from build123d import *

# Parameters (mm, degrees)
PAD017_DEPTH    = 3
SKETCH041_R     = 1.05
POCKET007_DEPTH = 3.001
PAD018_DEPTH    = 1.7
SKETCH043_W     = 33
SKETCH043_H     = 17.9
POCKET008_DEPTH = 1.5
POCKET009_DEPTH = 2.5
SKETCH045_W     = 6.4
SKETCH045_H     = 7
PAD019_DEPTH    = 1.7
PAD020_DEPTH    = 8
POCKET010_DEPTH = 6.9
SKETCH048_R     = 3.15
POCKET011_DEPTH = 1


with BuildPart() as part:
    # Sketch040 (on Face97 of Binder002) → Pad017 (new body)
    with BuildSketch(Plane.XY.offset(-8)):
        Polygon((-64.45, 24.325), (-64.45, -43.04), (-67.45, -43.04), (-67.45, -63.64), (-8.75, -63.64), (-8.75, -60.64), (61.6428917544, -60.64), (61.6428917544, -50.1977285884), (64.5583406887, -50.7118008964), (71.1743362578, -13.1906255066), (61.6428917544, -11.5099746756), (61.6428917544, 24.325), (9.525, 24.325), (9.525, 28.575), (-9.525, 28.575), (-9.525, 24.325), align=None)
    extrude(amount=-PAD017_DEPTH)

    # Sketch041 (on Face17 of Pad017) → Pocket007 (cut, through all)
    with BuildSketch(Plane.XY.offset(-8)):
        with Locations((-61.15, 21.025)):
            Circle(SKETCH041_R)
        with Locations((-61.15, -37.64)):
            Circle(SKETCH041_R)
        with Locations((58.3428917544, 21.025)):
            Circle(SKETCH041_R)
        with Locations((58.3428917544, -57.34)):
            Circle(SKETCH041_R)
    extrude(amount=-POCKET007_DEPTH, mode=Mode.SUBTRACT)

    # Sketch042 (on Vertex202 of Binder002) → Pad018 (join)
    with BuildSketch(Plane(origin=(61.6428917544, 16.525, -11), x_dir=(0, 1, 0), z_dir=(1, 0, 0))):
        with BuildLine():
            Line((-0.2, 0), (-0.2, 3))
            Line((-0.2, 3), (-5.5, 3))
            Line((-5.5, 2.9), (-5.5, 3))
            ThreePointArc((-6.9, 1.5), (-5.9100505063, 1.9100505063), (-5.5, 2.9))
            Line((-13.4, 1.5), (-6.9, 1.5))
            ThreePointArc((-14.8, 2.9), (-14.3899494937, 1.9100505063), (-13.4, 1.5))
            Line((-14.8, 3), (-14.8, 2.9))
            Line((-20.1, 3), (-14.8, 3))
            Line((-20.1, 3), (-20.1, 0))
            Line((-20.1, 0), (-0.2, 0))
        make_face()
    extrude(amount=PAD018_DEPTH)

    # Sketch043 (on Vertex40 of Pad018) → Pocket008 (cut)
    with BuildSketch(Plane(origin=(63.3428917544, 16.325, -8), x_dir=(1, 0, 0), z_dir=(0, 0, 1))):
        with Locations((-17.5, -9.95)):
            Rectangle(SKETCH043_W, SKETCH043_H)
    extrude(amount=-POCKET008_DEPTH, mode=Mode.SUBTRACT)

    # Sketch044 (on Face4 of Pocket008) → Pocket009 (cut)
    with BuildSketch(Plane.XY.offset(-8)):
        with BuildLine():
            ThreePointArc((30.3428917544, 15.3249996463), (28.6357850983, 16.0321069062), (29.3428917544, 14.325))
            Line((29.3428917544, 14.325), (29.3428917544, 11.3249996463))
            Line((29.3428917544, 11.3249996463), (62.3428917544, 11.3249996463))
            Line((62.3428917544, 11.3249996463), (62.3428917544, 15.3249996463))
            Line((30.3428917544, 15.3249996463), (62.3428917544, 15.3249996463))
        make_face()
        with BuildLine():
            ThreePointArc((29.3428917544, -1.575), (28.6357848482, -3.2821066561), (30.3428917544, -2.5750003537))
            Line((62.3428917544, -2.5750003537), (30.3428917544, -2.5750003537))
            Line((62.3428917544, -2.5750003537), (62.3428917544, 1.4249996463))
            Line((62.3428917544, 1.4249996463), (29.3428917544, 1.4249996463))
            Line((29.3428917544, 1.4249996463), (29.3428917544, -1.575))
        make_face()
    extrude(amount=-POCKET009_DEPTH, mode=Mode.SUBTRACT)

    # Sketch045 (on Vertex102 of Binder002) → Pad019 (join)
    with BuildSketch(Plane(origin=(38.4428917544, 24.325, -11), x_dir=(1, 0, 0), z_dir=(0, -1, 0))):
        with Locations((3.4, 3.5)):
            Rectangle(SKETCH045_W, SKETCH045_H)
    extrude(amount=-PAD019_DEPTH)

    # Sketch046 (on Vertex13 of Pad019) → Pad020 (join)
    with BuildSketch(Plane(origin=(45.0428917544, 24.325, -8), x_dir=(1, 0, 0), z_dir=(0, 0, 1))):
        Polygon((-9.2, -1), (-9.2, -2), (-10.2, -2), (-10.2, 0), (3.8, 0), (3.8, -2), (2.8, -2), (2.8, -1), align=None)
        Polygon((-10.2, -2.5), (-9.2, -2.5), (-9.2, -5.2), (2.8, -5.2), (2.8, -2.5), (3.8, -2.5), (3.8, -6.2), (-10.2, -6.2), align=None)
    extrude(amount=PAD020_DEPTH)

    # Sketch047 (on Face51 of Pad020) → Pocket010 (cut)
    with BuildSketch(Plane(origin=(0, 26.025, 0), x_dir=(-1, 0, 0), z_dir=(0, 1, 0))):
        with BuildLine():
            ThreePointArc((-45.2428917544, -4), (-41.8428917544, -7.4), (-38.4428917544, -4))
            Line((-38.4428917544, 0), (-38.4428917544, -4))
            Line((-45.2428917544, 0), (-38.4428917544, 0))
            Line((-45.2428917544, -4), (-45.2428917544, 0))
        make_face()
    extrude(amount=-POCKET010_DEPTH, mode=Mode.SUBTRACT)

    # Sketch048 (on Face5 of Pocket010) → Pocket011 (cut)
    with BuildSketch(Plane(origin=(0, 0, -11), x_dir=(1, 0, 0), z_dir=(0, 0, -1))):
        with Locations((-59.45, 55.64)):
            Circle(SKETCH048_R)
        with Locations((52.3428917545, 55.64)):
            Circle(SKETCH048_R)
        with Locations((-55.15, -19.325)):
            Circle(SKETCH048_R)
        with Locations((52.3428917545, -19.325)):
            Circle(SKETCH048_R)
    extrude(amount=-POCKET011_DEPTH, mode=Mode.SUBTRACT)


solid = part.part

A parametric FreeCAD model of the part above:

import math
import FreeCAD as App
import Part
import Sketcher

V = App.Vector
Q = App.Units.Quantity


def add_polygon(sketch, points):
    """Adds a closed chain of lines whose ends are joined by coincident constraints."""
    first, n = sketch.GeometryCount, len(points)
    for a, b in zip(points, points[1:] + points[:1]):
        sketch.addGeometry(Part.LineSegment(App.Vector(*a, 0), App.Vector(*b, 0)), False)
    for i in range(n):
        sketch.addConstraint(Sketcher.Constraint("Coincident", first + i, 2, first + (i + 1) % n, 1))

doc = App.newDocument("Part")
params = doc.addObject("Spreadsheet::Sheet", "Params")
for row, (alias, value) in enumerate([
    ("sketch1_width", "3 mm"),
    ("sketch1_width2", "58.7 mm"),
    ("sketch1_height", "20.6 mm"),
    ("sketch1_length", "38.1 mm"),
    ("sketch1_width3", "19.05 mm"),
    ("pad1_length", "3 mm"),
    ("sketch2_diameter", "2.1 mm"),
    ("sketch3_radius", "1.4 mm"),
    ("sketch3_height", "3 mm"),
    ("sketch3_width", "5.3 mm"),
    ("sketch3_width2", "6.5 mm"),
    ("sketch3_height2", "0.1 mm"),
    ("pad2_length", "1.7 mm"),
    ("sketch4_width", "33 mm"),
    ("sketch4_height", "17.9 mm"),
    ("pocket2_length", "1.5 mm"),
    ("sketch5_radius", "1 mm"),
    ("sketch5_width", "33 mm"),
    ("sketch5_height", "3 mm"),
    ("pocket3_length", "2.5 mm"),
    ("sketch6_height", "7 mm"),
    ("sketch6_width", "6.4 mm"),
    ("pad3_length", "1.7 mm"),
    ("sketch7_width", "12 mm"),
    ("sketch7_width2", "1 mm"),
    ("sketch7_height", "2 mm"),
    ("sketch7_height2", "3.7 mm"),
    ("sketch7_height3", "2.7 mm"),
    ("pad4_length", "8 mm"),
    ("sketch8_radius", "3.4 mm"),
    ("sketch8_height", "4 mm"),
    ("pocket4_length", "6.9 mm"),
    ("sketch9_diameter", "6.3 mm"),
    ("pocket5_length", "1 mm"),
], start=1):
    params.set(f"A{row}", alias)
    params.set(f"B{row}", "=" + value)
    params.setAlias(f"B{row}", alias)

body = doc.addObject("PartDesign::Body", "Body")

# Sketch on XY plane
sketch1 = doc.addObject("Sketcher::SketchObject", "Sketch")
body.addObject(sketch1)
sketch1.AttachmentSupport = (doc.XY_Plane, [""])
sketch1.MapMode = "FlatFace"
sketch1.AttachmentOffset = App.Placement(V(0, 0, -8), App.Rotation())
add_polygon(sketch1, [(-64.5, 24.3), (-64.5, -43), (-67.5, -43), (-67.5, -63.6), (-8.8, -63.6), (-8.8, -60.6), (61.6, -60.6), (61.6, -50.2), (64.6, -50.7), (71.2, -13.2), (61.6, -11.5), (61.6, 24.3), (9.5, 24.3), (9.5, 28.6), (-9.5, 28.6), (-9.5, 24.3)])  # lines 0-15
sketch1.addConstraint([
    Sketcher.Constraint("Vertical", 0),
    Sketcher.Constraint("Horizontal", 1),
    Sketcher.Constraint("Vertical", 2),
    Sketcher.Constraint("Horizontal", 3),
    Sketcher.Constraint("Vertical", 4),
    Sketcher.Constraint("Horizontal", 5),
    Sketcher.Constraint("Vertical", 6),
    Sketcher.Constraint("Vertical", 10),
    Sketcher.Constraint("Horizontal", 11),
    Sketcher.Constraint("Vertical", 12),
    Sketcher.Constraint("Horizontal", 13),
    Sketcher.Constraint("Vertical", 14),
    Sketcher.Constraint("Horizontal", 15),
    Sketcher.Constraint("Symmetric", 11, 2, 14, 2, -2),
    Sketcher.Constraint("Perpendicular", 7, 8),
    Sketcher.Constraint("Perpendicular", 8, 9),
    Sketcher.Constraint("Vertical", 6, 2, 9, 2),
    Sketcher.Constraint("Equal", 1, 4),
    Sketcher.Constraint("DistanceX", 1, 2, 1, 1, Q("3 mm")),
    Sketcher.Constraint("Angle", 7, Q("-10 deg")),
    Sketcher.Constraint("DistanceX", 3, 1, 3, 2, Q("58.7 mm")),
    Sketcher.Constraint("DistanceY", 2, 2, 2, 1, Q("20.6 mm")),
    Sketcher.Constraint("Distance", 8, Q("38.1 mm")),
    Sketcher.Constraint("DistanceX", 13, 2, 13, 1, Q("19.05 mm")),
    Sketcher.Constraint("DistanceY", 12, 1, 12, 2, Q("4.25 mm")),
    Sketcher.Constraint("DistanceX", 15, 2, 15, 1, Q("54.925 mm")),
    Sketcher.Constraint("DistanceY", 0, 2, 0, 1, Q("67.365 mm")),
    Sketcher.Constraint("DistanceY", 0, 2, -1, 1, Q("43.04 mm")),
    Sketcher.Constraint("DistanceX", 5, 1, 5, 2, Q("70.392892 mm")),
    Sketcher.Constraint("DistanceY", 6, 1, 6, 2, Q("10.442271 mm")),
    Sketcher.Constraint("DistanceY", 7, 2, -1, 1, Q("50.711801 mm")),
])
sketch1.setExpression("Constraints[34]", "Params.sketch1_width")
sketch1.setExpression("Constraints[36]", "Params.sketch1_width2")
sketch1.setExpression("Constraints[37]", "Params.sketch1_height")
sketch1.setExpression("Constraints[38]", "Params.sketch1_length")
sketch1.setExpression("Constraints[39]", "Params.sketch1_width3")
pad1 = doc.addObject("PartDesign::Pad", "Pad")
body.addObject(pad1)
pad1.Profile = sketch1
pad1.setExpression("Length", "Params.pad1_length")
pad1.Reversed = True

# Sketch on XY plane
sketch2 = doc.addObject("Sketcher::SketchObject", "Sketch001")
body.addObject(sketch2)
sketch2.AttachmentSupport = (doc.XY_Plane, [""])
sketch2.MapMode = "FlatFace"
sketch2.AttachmentOffset = App.Placement(V(0, 0, -8), App.Rotation())
sketch2.addGeometry([
    Part.Circle(V(-61.1, 21, 0), V(0, 0, 1), 1.1),
    Part.Circle(V(-61.1, -37.6, 0), V(0, 0, 1), 1.1),
    Part.Circle(V(58.3, 21, 0), V(0, 0, 1), 1.1),
    Part.Circle(V(58.3, -57.3, 0), V(0, 0, 1), 1.1),
], False)
sketch2.addConstraint([
    Sketcher.Constraint("Equal", 0, 1),
    Sketcher.Constraint("Equal", 1, 2),
    Sketcher.Constraint("Equal", 2, 3),
    Sketcher.Constraint("Horizontal", 0, 3, 2, 3),
    Sketcher.Constraint("Vertical", 0, 3, 1, 3),
    Sketcher.Constraint("Vertical", 2, 3, 3, 3),
    Sketcher.Constraint("Diameter", 0, Q("2.1 mm")),
    Sketcher.Constraint("DistanceY", 3, 3, 1, 3, Q("19.7 mm")),
    Sketcher.Constraint("DistanceX", 0, 3, -1, 1, Q("61.15 mm")),
    Sketcher.Constraint("DistanceY", 1, 3, -1, 1, Q("37.64 mm")),
    Sketcher.Constraint("DistanceY", -1, 1, 0, 3, Q("21.025 mm")),
    Sketcher.Constraint("DistanceX", -1, 1, 2, 3, Q("58.342892 mm")),
])
sketch2.setExpression("Constraints[6]", "Params.sketch2_diameter")
pocket1 = doc.addObject("PartDesign::Pocket", "Pocket")
body.addObject(pocket1)
pocket1.Profile = sketch2
pocket1.Type = "ThroughAll"

# Sketch on YZ plane
sketch3 = doc.addObject("Sketcher::SketchObject", "Sketch002")
body.addObject(sketch3)
sketch3.AttachmentSupport = (doc.YZ_Plane, [""])
sketch3.MapMode = "FlatFace"
sketch3.AttachmentOffset = App.Placement(V(0, 0, 61.642892), App.Rotation())
sketch3.addGeometry([
    Part.LineSegment(V(16.32, -11, 0), V(16.32, -8, 0)),  # 0
    Part.LineSegment(V(16.32, -8, 0), V(11.03, -8, 0)),  # 1
    Part.LineSegment(V(11.03, -8, 0), V(11.03, -8.1, 0)),  # 2
    Part.ArcOfCircle(Part.Circle(V(9.62, -8.1, 0), V(0, 0, 1), 1.4), math.radians(-90), math.radians(0)),  # 3
    Part.LineSegment(V(9.62, -9.5, 0), V(3.12, -9.5, 0)),  # 4
    Part.ArcOfCircle(Part.Circle(V(3.12, -8.1, 0), V(0, 0, 1), 1.4), math.radians(180), math.radians(270)),  # 5
    Part.LineSegment(V(1.73, -8.1, 0), V(1.73, -8, 0)),  # 6
    Part.LineSegment(V(1.73, -8, 0), V(-3.58, -8, 0)),  # 7
    Part.LineSegment(V(-3.58, -8, 0), V(-3.58, -11, 0)),  # 8
    Part.LineSegment(V(-3.58, -11, 0), V(16.32, -11, 0)),  # 9
], False)
sketch3.addConstraint([
    Sketcher.Constraint("Coincident", 0, 2, 1, 1),
    Sketcher.Constraint("Coincident", 1, 2, 2, 1),
    Sketcher.Constraint("Tangent", 2, 2, 3, 2),
    Sketcher.Constraint("Tangent", 3, 1, 4, 1),
    Sketcher.Constraint("Tangent", 4, 2, 5, 2),
    Sketcher.Constraint("Tangent", 5, 1, 6, 1),
    Sketcher.Constraint("Coincident", 6, 2, 7, 1),
    Sketcher.Constraint("Coincident", 7, 2, 8, 1),
    Sketcher.Constraint("Coincident", 8, 2, 9, 1),
    Sketcher.Constraint("Coincident", 9, 2, 0, 1),
    Sketcher.Constraint("Vertical", 0),
    Sketcher.Constraint("Horizontal", 1),
    Sketcher.Constraint("Vertical", 2),
    Sketcher.Constraint("Horizontal", 4),
    Sketcher.Constraint("Vertical", 6),
    Sketcher.Constraint("Horizontal", 7),
    Sketcher.Constraint("Vertical", 8),
    Sketcher.Constraint("Horizontal", 9),
    Sketcher.Constraint("Equal", 3, 5),
    Sketcher.Constraint("Horizontal", 1, 2, 6, 2),
    Sketcher.Constraint("Equal", 1, 7),
    Sketcher.Constraint("Radius", 3, Q("1.4 mm")),
    Sketcher.Constraint("DistanceY", 0, 1, 0, 2, Q("3 mm")),
    Sketcher.Constraint("DistanceX", 1, 2, 1, 1, Q("5.3 mm")),
    Sketcher.Constraint("DistanceX", 4, 2, 4, 1, Q("6.5 mm")),
    Sketcher.Constraint("DistanceY", 2, 2, 2, 1, Q("0.1 mm")),
    Sketcher.Constraint("DistanceY", 0, 2, -1, 1, Q("8 mm")),
    Sketcher.Constraint("DistanceX", -1, 1, 3, 3, Q("9.625 mm")),
])
sketch3.setExpression("Constraints[21]", "Params.sketch3_radius")
sketch3.setExpression("Constraints[22]", "Params.sketch3_height")
sketch3.setExpression("Constraints[23]", "Params.sketch3_width")
sketch3.setExpression("Constraints[24]", "Params.sketch3_width2")
sketch3.setExpression("Constraints[25]", "Params.sketch3_height2")
pad2 = doc.addObject("PartDesign::Pad", "Pad001")
body.addObject(pad2)
pad2.Profile = sketch3
pad2.setExpression("Length", "Params.pad2_length")

# Sketch on XY plane
sketch4 = doc.addObject("Sketcher::SketchObject", "Sketch003")
body.addObject(sketch4)
sketch4.AttachmentSupport = (doc.XY_Plane, [""])
sketch4.MapMode = "FlatFace"
sketch4.AttachmentOffset = App.Placement(V(0, 0, -8), App.Rotation())
add_polygon(sketch4, [(29, 15), (29, -3), (62, -3), (62, 15)])  # lines 0-3
sketch4.addConstraint([
    Sketcher.Constraint("Vertical", 0),
    Sketcher.Constraint("Horizontal", 1),
    Sketcher.Constraint("Vertical", 2),
    Sketcher.Constraint("Horizontal", 3),
    Sketcher.Constraint("DistanceX", 1, 1, 1, 2, Q("33 mm")),
    Sketcher.Constraint("DistanceY", 0, 2, 0, 1, Q("17.9 mm")),
    Sketcher.Constraint("DistanceY", 0, 2, -1, 1, Q("2.575 mm")),
    Sketcher.Constraint("DistanceX", -1, 1, 0, 2, Q("29.342892 mm")),
])
sketch4.setExpression("Constraints[8]", "Params.sketch4_width")
sketch4.setExpression("Constraints[9]", "Params.sketch4_height")
pocket2 = doc.addObject("PartDesign::Pocket", "Pocket001")
body.addObject(pocket2)
pocket2.Profile = sketch4
pocket2.setExpression("Length", "Params.pocket2_length")

# Sketch on XY plane
sketch5 = doc.addObject("Sketcher::SketchObject", "Sketch004")
body.addObject(sketch5)
sketch5.AttachmentSupport = (doc.XY_Plane, [""])
sketch5.MapMode = "FlatFace"
sketch5.AttachmentOffset = App.Placement(V(0, 0, -8), App.Rotation())
sketch5.addGeometry([
    Part.ArcOfCircle(Part.Circle(V(29.3, 15.3, 0), V(0, 0, 1), 1), math.radians(0), math.radians(270)),  # 0
    Part.LineSegment(V(29.3, 14.3, 0), V(29.3, 11.3, 0)),  # 1
    Part.LineSegment(V(29.3, 11.3, 0), V(62.3, 11.3, 0)),  # 2
    Part.LineSegment(V(62.3, 11.3, 0), V(62.3, 15.3, 0)),  # 3
    Part.LineSegment(V(62.3, 15.3, 0), V(30.3, 15.3, 0)),  # 4
    Part.ArcOfCircle(Part.Circle(V(29.3, -2.6, 0), V(0, 0, 1), 1), math.radians(90), math.radians(360)),  # 5
    Part.LineSegment(V(30.3, -2.6, 0), V(62.3, -2.6, 0)),  # 6
    Part.LineSegment(V(62.3, -2.6, 0), V(62.3, 1.4, 0)),  # 7
    Part.LineSegment(V(62.3, 1.4, 0), V(29.3, 1.4, 0)),  # 8
    Part.LineSegment(V(29.3, 1.4, 0), V(29.3, -1.6, 0)),  # 9
], False)
sketch5.addConstraint([
    Sketcher.Constraint("Coincident", 0, 2, 1, 1),
    Sketcher.Constraint("Coincident", 1, 2, 2, 1),
    Sketcher.Constraint("Coincident", 2, 2, 3, 1),
    Sketcher.Constraint("Coincident", 3, 2, 4, 1),
    Sketcher.Constraint("Coincident", 4, 2, 0, 1),
    Sketcher.Constraint("Coincident", 5, 2, 6, 1),
    Sketcher.Constraint("Coincident", 6, 2, 7, 1),
    Sketcher.Constraint("Coincident", 7, 2, 8, 1),
    Sketcher.Constraint("Coincident", 8, 2, 9, 1),
    Sketcher.Constraint("Coincident", 9, 2, 5, 1),
    Sketcher.Constraint("Vertical", 1),
    Sketcher.Constraint("Horizontal", 2),
    Sketcher.Constraint("Vertical", 3),
    Sketcher.Constraint("Horizontal", 4),
    Sketcher.Constraint("Horizontal", 6),
    Sketcher.Constraint("Vertical", 7),
    Sketcher.Constraint("Horizontal", 8),
    Sketcher.Constraint("Vertical", 9),
    Sketcher.Constraint("Equal", 0, 5),
    Sketcher.Constraint("Horizontal", 0, 3, 3, 2),
    Sketcher.Constraint("Vertical", 0, 3, 5, 3),
    Sketcher.Constraint("Vertical", 5, 3, 0, 2),
    Sketcher.Constraint("Vertical", 3, 2, 6, 2),
    Sketcher.Constraint("Vertical", 1, 2, 8, 2),
    Sketcher.Constraint("Equal", 3, 7),
    Sketcher.Constraint("Equal", 1, 9),
    Sketcher.Constraint("Radius", 0, Q("1 mm")),
    Sketcher.Constraint("DistanceX", 2, 1, 2, 2, Q("33 mm")),
    Sketcher.Constraint("DistanceY", 1, 2, 1, 1, Q("3 mm")),
    Sketcher.Constraint("DistanceY", 5, 3, 0, 3, Q("17.9 mm")),
    Sketcher.Constraint("DistanceY", -1, 1, 0, 3, Q("15.325 mm")),
    Sketcher.Constraint("DistanceX", -1, 1, 0, 3, Q("29.342892 mm")),
])
sketch5.setExpression("Constraints[26]", "Params.sketch5_radius")
sketch5.setExpression("Constraints[27]", "Params.sketch5_width")
sketch5.setExpression("Constraints[28]", "Params.sketch5_height")
pocket3 = doc.addObject("PartDesign::Pocket", "Pocket002")
body.addObject(pocket3)
pocket3.Profile = sketch5
pocket3.setExpression("Length", "Params.pocket3_length")

# Sketch on XZ plane
sketch6 = doc.addObject("Sketcher::SketchObject", "Sketch005")
body.addObject(sketch6)
sketch6.AttachmentSupport = (doc.XZ_Plane, [""])
sketch6.MapMode = "FlatFace"
sketch6.AttachmentOffset = App.Placement(V(0, 0, -24.325), App.Rotation())
add_polygon(sketch6, [(39, -4), (39, -11), (45, -11), (45, -4)])  # lines 0-3
sketch6.addConstraint([
    Sketcher.Constraint("Vertical", 0),
    Sketcher.Constraint("Horizontal", 1),
    Sketcher.Constraint("Vertical", 2),
    Sketcher.Constraint("Horizontal", 3),
    Sketcher.Constraint("DistanceY", 0, 2, 0, 1, Q("7 mm")),
    Sketcher.Constraint("DistanceX", 1, 1, 1, 2, Q("6.4 mm")),
    Sketcher.Constraint("DistanceY", 0, 2, -1, 1, Q("11 mm")),
    Sketcher.Constraint("DistanceX", -1, 1, 0, 2, Q("38.642892 mm")),
])
sketch6.setExpression("Constraints[8]", "Params.sketch6_height")
sketch6.setExpression("Constraints[9]", "Params.sketch6_width")
pad3 = doc.addObject("PartDesign::Pad", "Pad002")
body.addObject(pad3)
pad3.Profile = sketch6
pad3.setExpression("Length", "Params.pad3_length")
pad3.Reversed = True

# Sketch on XY plane
sketch7 = doc.addObject("Sketcher::SketchObject", "Sketch006")
body.addObject(sketch7)
sketch7.AttachmentSupport = (doc.XY_Plane, [""])
sketch7.MapMode = "FlatFace"
sketch7.AttachmentOffset = App.Placement(V(0, 0, -8), App.Rotation())
add_polygon(sketch7, [(35.8, 22.3), (35.8, 23.3), (47.8, 23.3), (47.8, 22.3), (48.8, 22.3), (48.8, 24.3), (34.8, 24.3), (34.8, 22.3)])  # lines 0-7
add_polygon(sketch7, [(35.8, 21.8), (34.8, 21.8), (34.8, 18.1), (48.8, 18.1), (48.8, 21.8), (47.8, 21.8), (47.8, 19.1), (35.8, 19.1)])  # lines 8-15
sketch7.addConstraint([
    Sketcher.Constraint("Vertical", 0),
    Sketcher.Constraint("Horizontal", 1),
    Sketcher.Constraint("Vertical", 2),
    Sketcher.Constraint("Horizontal", 3),
    Sketcher.Constraint("Vertical", 4),
    Sketcher.Constraint("Horizontal", 5),
    Sketcher.Constraint("Vertical", 6),
    Sketcher.Constraint("Horizontal", 7),
    Sketcher.Constraint("Horizontal", 8),
    Sketcher.Constraint("Vertical", 9),
    Sketcher.Constraint("Horizontal", 10),
    Sketcher.Constraint("Vertical", 11),
    Sketcher.Constraint("Horizontal", 12),
    Sketcher.Constraint("Vertical", 13),
    Sketcher.Constraint("Horizontal", 14),
    Sketcher.Constraint("Vertical", 15),
    Sketcher.Constraint("Horizontal", 3, 2, 6, 2),
    Sketcher.Constraint("Horizontal", 8, 2, 11, 2),
    Sketcher.Constraint("Vertical", 6, 2, 8, 2),
    Sketcher.Constraint("Vertical", 4, 2, 10, 2),
    Sketcher.Constraint("Vertical", 2, 2, 12, 2),
    Sketcher.Constraint("Vertical", 7, 2, 14, 2),
    Sketcher.Constraint("Equal", 3, 7),
    Sketcher.Constraint("Equal", 12, 0),
    Sketcher.Constraint("DistanceX", 1, 1, 1, 2, Q("12 mm")),
    Sketcher.Constraint("DistanceX", 3, 1, 3, 2, Q("1 mm")),
    Sketcher.Constraint("DistanceY", 4, 1, 4, 2, Q("2 mm")),
    Sketcher.Constraint("DistanceY", 9, 2, 9, 1, Q("3.7 mm")),
    Sketcher.Constraint("DistanceY", 13, 2, 13, 1, Q("2.7 mm")),
    Sketcher.Constraint("DistanceY", 8, 2, 6, 2, Q("0.5 mm")),
    Sketcher.Constraint("DistanceY", -1, 1, 0, 2, Q("23.325 mm")),
    Sketcher.Constraint("DistanceX", -1, 1, 0, 2, Q("35.842892 mm")),
])
sketch7.setExpression("Constraints[40]", "Params.sketch7_width")
sketch7.setExpression("Constraints[41]", "Params.sketch7_width2")
sketch7.setExpression("Constraints[42]", "Params.sketch7_height")
sketch7.setExpression("Constraints[43]", "Params.sketch7_height2")
sketch7.setExpression("Constraints[44]", "Params.sketch7_height3")
pad4 = doc.addObject("PartDesign::Pad", "Pad003")
body.addObject(pad4)
pad4.Profile = sketch7
pad4.setExpression("Length", "Params.pad4_length")

# Sketch on XZ plane
sketch8 = doc.addObject("Sketcher::SketchObject", "Sketch007")
body.addObject(sketch8)
sketch8.AttachmentSupport = (doc.XZ_Plane, [""])
sketch8.MapMode = "FlatFace"
sketch8.AttachmentOffset = App.Placement(V(0, 0, -26.025), App.Rotation())
sketch8.addGeometry([
    Part.ArcOfCircle(Part.Circle(V(41.8, -4, 0), V(0, 0, 1), 3.4), math.radians(180), math.radians(360)),
    Part.LineSegment(V(38.4, -4, 0), V(38.4, 0, 0)),
    Part.LineSegment(V(38.4, 0, 0), V(45.2, 0, 0)),
    Part.LineSegment(V(45.2, 0, 0), V(45.2, -4, 0)),
], False)
sketch8.addConstraint([
    Sketcher.Constraint("Tangent", 0, 1, 1, 1),
    Sketcher.Constraint("Coincident", 1, 2, 2, 1),
    Sketcher.Constraint("Coincident", 2, 2, 3, 1),
    Sketcher.Constraint("Tangent", 3, 2, 0, 2),
    Sketcher.Constraint("Vertical", 1),
    Sketcher.Constraint("Horizontal", 2),
    Sketcher.Constraint("Vertical", 3),
    Sketcher.Constraint("PointOnObject", 1, 2, -1),
    Sketcher.Constraint("Radius", 0, Q("3.4 mm")),
    Sketcher.Constraint("DistanceY", 1, 1, 1, 2, Q("4 mm")),
    Sketcher.Constraint("DistanceX", -1, 1, 0, 3, Q("41.842892 mm")),
])
sketch8.setExpression("Constraints[8]", "Params.sketch8_radius")
sketch8.setExpression("Constraints[9]", "Params.sketch8_height")
pocket4 = doc.addObject("PartDesign::Pocket", "Pocket003")
body.addObject(pocket4)
pocket4.Profile = sketch8
pocket4.setExpression("Length", "Params.pocket4_length")
pocket4.Reversed = True

# Sketch on XY plane
sketch9 = doc.addObject("Sketcher::SketchObject", "Sketch008")
body.addObject(sketch9)
sketch9.AttachmentSupport = (doc.XY_Plane, [""])
sketch9.MapMode = "FlatFace"
sketch9.AttachmentOffset = App.Placement(V(0, 0, -11), App.Rotation())
sketch9.addGeometry([
    Part.Circle(V(-59.5, -55.6, 0), V(0, 0, 1), 3.1),
    Part.Circle(V(52.3, -55.6, 0), V(0, 0, 1), 3.1),
    Part.Circle(V(-55.1, 19.3, 0), V(0, 0, 1), 3.1),
    Part.Circle(V(52.3, 19.3, 0), V(0, 0, 1), 3.1),
], False)
sketch9.addConstraint([
    Sketcher.Constraint("Equal", 0, 1),
    Sketcher.Constraint("Equal", 1, 2),
    Sketcher.Constraint("Equal", 2, 3),
    Sketcher.Constraint("Horizontal", 0, 3, 1, 3),
    Sketcher.Constraint("Horizontal", 2, 3, 3, 3),
    Sketcher.Constraint("Vertical", 1, 3, 3, 3),
    Sketcher.Constraint("Diameter", 0, Q("6.3 mm")),
    Sketcher.Constraint("DistanceX", 0, 3, 2, 3, Q("4.3 mm")),
    Sketcher.Constraint("DistanceX", 0, 3, -1, 1, Q("59.45 mm")),
    Sketcher.Constraint("DistanceY", 0, 3, -1, 1, Q("55.64 mm")),
    Sketcher.Constraint("DistanceY", -1, 1, 2, 3, Q("19.325 mm")),
    Sketcher.Constraint("DistanceX", -1, 1, 1, 3, Q("52.342892 mm")),
])
sketch9.setExpression("Constraints[6]", "Params.sketch9_diameter")
pocket5 = doc.addObject("PartDesign::Pocket", "Pocket004")
body.addObject(pocket5)
pocket5.Profile = sketch9
pocket5.setExpression("Length", "Params.pocket5_length")
pocket5.Reversed = True

doc.recompute()
